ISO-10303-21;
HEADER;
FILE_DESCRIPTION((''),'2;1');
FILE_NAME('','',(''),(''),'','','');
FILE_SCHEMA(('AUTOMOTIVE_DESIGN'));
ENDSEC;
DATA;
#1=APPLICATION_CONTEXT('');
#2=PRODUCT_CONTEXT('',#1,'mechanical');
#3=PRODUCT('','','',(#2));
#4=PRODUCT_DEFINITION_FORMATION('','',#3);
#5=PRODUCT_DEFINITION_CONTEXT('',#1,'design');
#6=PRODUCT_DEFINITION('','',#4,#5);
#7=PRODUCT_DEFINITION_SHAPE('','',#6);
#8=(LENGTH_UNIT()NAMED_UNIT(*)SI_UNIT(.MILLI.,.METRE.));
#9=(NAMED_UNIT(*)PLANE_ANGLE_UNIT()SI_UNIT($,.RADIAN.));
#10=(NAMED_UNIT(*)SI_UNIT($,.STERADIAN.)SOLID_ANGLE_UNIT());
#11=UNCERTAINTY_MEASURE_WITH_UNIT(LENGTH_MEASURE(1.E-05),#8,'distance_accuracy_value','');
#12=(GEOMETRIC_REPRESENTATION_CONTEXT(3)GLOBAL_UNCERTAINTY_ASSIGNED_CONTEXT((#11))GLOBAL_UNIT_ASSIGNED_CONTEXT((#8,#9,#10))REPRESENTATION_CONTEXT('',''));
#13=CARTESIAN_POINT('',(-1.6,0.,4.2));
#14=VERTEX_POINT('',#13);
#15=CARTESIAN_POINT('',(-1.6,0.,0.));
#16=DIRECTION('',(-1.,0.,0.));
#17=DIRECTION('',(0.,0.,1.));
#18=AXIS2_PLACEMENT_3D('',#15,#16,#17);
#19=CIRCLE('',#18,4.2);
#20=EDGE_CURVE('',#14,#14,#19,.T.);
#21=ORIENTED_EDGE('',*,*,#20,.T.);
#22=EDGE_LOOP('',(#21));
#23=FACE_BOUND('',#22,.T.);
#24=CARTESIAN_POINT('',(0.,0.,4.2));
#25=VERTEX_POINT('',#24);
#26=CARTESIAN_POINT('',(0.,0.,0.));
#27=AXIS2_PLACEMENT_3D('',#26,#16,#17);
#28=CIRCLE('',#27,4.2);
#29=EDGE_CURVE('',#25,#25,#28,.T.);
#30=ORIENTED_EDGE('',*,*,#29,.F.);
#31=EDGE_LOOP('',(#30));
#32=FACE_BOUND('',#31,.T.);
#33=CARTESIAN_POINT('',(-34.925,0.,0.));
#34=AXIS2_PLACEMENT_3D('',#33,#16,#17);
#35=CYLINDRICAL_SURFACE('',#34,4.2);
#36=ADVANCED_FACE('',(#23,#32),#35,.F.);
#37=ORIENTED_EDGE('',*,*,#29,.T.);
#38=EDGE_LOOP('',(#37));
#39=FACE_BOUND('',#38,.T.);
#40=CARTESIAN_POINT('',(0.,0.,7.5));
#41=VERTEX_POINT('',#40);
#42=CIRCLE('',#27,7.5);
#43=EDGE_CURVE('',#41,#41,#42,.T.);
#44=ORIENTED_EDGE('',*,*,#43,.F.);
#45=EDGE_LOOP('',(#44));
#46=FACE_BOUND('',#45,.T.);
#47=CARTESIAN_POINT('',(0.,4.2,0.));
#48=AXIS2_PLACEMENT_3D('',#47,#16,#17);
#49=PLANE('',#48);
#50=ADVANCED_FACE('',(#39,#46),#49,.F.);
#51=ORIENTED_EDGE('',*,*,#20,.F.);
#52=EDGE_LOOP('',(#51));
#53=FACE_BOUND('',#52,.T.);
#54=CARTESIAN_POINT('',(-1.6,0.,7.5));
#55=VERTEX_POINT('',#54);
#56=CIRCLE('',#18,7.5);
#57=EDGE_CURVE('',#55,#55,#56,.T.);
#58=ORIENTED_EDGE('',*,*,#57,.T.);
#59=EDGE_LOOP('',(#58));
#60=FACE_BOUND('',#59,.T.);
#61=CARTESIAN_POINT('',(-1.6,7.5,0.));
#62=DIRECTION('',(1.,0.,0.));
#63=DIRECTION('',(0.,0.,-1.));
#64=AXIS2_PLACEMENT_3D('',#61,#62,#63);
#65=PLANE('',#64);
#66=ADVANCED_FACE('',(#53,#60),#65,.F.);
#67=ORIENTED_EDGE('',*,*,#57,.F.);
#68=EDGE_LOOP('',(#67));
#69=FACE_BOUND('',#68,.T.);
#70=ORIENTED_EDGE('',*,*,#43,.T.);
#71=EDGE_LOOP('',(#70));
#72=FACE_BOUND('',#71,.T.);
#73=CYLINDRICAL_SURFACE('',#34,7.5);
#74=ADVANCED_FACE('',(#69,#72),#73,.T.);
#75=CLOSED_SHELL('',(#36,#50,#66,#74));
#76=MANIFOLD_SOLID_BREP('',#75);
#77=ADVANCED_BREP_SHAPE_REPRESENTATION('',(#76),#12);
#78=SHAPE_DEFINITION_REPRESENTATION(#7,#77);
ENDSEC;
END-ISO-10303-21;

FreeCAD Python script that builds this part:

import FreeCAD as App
import Part
import Sketcher

V = App.Vector


def add_polygon(sketch, points):
    """Adds a closed chain of lines whose ends are joined by coincident constraints."""
    first, n = sketch.GeometryCount, len(points)
    for a, b in zip(points, points[1:] + points[:1]):
        sketch.addGeometry(Part.LineSegment(App.Vector(*a, 0), App.Vector(*b, 0)), False)
    for i in range(n):
        sketch.addConstraint(Sketcher.Constraint("Coincident", first + i, 2, first + (i + 1) % n, 1))

doc = App.newDocument("Part")
params = doc.addObject("Spreadsheet::Sheet", "Params")
for row, (alias, value) in enumerate([
    ("sketch1_width", "1.6 mm"),
    ("sketch1_height", "3.3 mm"),
    ("revolution_angle", "360 deg"),
], start=1):
    params.set(f"A{row}", alias)
    params.set(f"B{row}", "=" + value)
    params.setAlias(f"B{row}", alias)

body = doc.addObject("PartDesign::Body", "Body")

# Sketch on XY plane
sketch1 = body.newObject("Sketcher::SketchObject", "Sketch")
sketch1.AttachmentSupport = (doc.getObject("XY_Plane"), [""])
sketch1.MapMode = "FlatFace"
add_polygon(sketch1, [(-1.6, 7.5), (-1.6, 4.2), (0, 4.2), (0, 7.5)])  # lines 0-3
sketch1.addConstraint(Sketcher.Constraint("Vertical", 0))
sketch1.addConstraint(Sketcher.Constraint("Horizontal", 1))
sketch1.addConstraint(Sketcher.Constraint("Vertical", 2))
sketch1.addConstraint(Sketcher.Constraint("Horizontal", 3))
sketch1.addConstraint(Sketcher.Constraint("PointOnObject", 1, 2, -2))
sketch1.addConstraint(Sketcher.Constraint("DistanceX", 1, 1, 1, 2, 1.6))
sketch1.addConstraint(Sketcher.Constraint("DistanceY", 0, 2, 0, 1, 3.3))
sketch1.addConstraint(Sketcher.Constraint("DistanceY", -1, 1, 0, 2, 4.2))
sketch1.setExpression("Constraints[9]", "Params.sketch1_width")
sketch1.setExpression("Constraints[10]", "Params.sketch1_height")
revolution = body.newObject("PartDesign::Revolution", "Revolution")
revolution.Profile = sketch1
revolution.ReferenceAxis = (sketch1, ["H_Axis"])
revolution.setExpression("Angle", "Params.revolution_angle")

doc.recompute()
